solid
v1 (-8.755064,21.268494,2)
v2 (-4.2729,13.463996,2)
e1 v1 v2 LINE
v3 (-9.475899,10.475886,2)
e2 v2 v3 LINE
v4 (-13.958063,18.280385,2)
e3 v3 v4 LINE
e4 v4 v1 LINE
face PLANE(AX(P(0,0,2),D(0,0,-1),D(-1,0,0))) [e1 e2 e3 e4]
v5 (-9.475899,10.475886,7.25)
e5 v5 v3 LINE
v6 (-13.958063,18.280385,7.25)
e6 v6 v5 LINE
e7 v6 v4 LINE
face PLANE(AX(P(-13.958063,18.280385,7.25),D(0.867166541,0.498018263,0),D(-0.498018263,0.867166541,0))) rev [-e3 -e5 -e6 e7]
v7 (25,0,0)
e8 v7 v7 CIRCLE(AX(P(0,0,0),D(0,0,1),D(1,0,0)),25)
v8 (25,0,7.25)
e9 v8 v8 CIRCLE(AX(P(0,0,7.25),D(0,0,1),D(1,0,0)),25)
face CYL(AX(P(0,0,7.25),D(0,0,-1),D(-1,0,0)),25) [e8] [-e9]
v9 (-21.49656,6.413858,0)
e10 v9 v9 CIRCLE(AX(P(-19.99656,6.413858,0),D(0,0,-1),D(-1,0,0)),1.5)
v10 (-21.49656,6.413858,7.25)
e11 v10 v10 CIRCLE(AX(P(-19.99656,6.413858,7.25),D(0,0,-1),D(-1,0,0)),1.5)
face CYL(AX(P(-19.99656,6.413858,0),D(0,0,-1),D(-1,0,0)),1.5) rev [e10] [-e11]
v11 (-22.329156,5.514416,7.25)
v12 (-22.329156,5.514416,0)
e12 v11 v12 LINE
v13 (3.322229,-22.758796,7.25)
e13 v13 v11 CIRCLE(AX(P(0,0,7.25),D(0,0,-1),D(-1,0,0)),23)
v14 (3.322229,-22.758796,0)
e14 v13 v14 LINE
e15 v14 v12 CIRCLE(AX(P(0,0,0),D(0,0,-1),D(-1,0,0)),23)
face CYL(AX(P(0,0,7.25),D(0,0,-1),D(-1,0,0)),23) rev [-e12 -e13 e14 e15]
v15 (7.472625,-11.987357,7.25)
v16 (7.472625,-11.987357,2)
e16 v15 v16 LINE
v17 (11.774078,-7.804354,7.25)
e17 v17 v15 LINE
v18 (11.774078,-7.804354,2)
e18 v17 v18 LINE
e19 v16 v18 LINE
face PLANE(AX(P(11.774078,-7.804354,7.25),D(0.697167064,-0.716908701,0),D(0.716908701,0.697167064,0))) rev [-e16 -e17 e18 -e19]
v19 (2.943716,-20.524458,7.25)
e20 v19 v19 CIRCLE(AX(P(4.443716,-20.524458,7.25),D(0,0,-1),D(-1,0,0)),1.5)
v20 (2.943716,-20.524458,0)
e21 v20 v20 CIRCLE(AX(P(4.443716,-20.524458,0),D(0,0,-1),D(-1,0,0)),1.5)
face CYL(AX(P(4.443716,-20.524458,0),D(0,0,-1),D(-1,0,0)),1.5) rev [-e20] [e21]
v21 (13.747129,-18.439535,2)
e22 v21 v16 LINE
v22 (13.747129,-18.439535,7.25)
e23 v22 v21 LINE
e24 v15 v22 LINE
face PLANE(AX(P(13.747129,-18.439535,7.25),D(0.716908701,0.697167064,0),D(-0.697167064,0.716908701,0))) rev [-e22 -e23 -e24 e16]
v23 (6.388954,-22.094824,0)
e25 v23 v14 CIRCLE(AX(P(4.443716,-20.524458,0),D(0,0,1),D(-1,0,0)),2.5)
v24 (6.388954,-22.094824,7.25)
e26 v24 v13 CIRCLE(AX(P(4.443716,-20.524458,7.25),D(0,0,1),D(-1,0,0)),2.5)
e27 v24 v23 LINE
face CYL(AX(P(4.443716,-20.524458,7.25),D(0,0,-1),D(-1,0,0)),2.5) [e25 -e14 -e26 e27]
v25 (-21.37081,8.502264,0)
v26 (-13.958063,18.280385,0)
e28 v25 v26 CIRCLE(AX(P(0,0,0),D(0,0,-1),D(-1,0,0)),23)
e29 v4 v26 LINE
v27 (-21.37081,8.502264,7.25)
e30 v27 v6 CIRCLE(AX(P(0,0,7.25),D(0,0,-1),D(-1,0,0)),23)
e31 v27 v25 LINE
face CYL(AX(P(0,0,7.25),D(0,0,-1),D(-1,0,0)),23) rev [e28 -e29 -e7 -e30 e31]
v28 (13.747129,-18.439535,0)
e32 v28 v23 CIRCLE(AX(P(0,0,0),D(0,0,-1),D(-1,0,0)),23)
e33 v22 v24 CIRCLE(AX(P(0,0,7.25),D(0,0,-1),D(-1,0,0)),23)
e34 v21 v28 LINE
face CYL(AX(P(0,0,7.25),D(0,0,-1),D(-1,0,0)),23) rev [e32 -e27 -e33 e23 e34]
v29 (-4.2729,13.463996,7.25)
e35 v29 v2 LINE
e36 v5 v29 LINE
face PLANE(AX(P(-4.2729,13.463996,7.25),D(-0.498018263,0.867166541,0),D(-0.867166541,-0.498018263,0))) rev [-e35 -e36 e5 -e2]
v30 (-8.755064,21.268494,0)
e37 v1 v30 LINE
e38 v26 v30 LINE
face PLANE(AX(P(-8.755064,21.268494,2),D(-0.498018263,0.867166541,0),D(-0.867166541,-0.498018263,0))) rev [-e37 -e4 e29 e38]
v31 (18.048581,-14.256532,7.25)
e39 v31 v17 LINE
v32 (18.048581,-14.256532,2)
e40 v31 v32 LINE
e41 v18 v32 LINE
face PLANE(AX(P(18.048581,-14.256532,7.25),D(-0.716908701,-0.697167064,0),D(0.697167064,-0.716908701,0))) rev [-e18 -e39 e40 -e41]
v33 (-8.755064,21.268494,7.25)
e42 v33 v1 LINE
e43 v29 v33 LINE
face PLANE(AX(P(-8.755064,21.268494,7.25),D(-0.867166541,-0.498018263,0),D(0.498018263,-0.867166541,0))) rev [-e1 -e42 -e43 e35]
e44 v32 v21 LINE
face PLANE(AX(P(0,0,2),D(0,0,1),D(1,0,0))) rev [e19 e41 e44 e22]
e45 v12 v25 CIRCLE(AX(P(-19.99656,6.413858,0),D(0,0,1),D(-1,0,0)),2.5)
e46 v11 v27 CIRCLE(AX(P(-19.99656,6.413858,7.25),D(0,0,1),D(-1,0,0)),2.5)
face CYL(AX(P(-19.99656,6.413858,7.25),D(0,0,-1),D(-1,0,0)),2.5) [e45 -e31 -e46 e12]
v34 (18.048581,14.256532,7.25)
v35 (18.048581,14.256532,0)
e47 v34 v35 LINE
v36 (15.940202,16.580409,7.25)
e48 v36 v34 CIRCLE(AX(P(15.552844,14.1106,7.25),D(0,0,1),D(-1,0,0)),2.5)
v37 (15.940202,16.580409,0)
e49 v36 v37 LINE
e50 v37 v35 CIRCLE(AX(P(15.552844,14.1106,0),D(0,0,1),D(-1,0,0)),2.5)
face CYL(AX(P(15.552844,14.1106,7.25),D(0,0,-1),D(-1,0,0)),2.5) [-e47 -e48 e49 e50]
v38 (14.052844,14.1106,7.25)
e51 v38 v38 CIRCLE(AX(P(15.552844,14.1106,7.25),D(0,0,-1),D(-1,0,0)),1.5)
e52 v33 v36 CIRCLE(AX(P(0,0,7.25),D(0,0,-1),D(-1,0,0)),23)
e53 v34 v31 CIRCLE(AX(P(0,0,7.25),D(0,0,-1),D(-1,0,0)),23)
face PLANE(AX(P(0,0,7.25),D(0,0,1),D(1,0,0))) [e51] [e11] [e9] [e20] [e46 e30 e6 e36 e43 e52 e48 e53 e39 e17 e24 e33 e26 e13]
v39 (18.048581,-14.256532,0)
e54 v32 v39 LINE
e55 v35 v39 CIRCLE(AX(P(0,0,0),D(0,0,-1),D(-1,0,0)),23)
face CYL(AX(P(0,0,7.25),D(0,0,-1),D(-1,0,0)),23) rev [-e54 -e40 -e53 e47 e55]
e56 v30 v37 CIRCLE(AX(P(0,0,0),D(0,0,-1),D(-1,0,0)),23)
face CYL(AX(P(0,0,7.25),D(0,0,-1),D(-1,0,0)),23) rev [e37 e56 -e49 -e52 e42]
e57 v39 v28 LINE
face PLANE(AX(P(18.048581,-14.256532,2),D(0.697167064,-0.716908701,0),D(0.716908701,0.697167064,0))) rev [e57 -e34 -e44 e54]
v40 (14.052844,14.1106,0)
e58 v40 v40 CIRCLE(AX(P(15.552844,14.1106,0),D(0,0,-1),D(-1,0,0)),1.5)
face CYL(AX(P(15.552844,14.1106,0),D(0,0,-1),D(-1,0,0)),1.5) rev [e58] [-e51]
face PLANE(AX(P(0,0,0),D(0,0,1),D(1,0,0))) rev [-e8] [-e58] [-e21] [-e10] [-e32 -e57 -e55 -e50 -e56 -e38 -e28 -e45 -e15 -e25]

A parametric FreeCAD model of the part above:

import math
import FreeCAD as App
import Part
import Sketcher
from FreeCAD import Vector
Q = App.Units.Quantity

doc = App.newDocument("Part")
params = doc.addObject("Spreadsheet::Sheet", "Params")
for row, (alias, value) in enumerate([
    ("sketch1_diameter", "50 mm"),
    ("pad1_length", "7.25 mm"),
    ("sketch2_diameter", "3 mm"),
    ("hole_diameter", "3 mm"),
    ("sketch3_radius", "23 mm"),
    ("sketch3_radius2", "2.5 mm"),
    ("sketch3_length", "9 mm"),
    ("sketch3_length2", "6 mm"),
    ("sketch4_length", "9 mm"),
    ("sketch4_length2", "6 mm"),
    ("pocket2_length", "2 mm"),
], start=1):
    params.set(f"A{row}", alias)
    params.set(f"B{row}", "=" + value)
    params.setAlias(f"B{row}", alias)

body = doc.addObject("PartDesign::Body", "Body")

sketch1 = body.newObject("Sketcher::SketchObject", "Sketch")
sketch1.AttachmentSupport = (doc.getObject("XY_Plane"), [""])
sketch1.MapMode = "FlatFace"
sketch1.addGeometry(Part.Circle(Vector(0, 0, 0), Vector(0, 0, 1), 25), False)
sketch1.addConstraint([
    Sketcher.Constraint("Coincident", 0, 3, -1, 1),
    Sketcher.Constraint("Diameter", 0, Q("50 mm")),
])
sketch1.setExpression("Constraints[1]", "Params.sketch1_diameter")
pad1 = body.newObject("PartDesign::Pad", "Pad")
pad1.Profile = sketch1
pad1.setExpression("Length", "Params.pad1_length")

sketch2 = body.newObject("Sketcher::SketchObject", "Sketch001")
sketch2.AttachmentSupport = (doc.getObject("XY_Plane"), [""])
sketch2.MapMode = "FlatFace"
sketch2.addGeometry(Part.Circle(Vector(15.6, 14.1, 0), Vector(0, 0, 1), 1.5), False)
sketch2.addConstraint([
    Sketcher.Constraint("Diameter", 0, Q("3 mm")),
    Sketcher.Constraint("DistanceY", -1, 1, 0, 3, Q("14.1106 mm")),
    Sketcher.Constraint("DistanceX", -1, 1, 0, 3, Q("15.552844 mm")),
])
sketch2.setExpression("Constraints[0]", "Params.sketch2_diameter")
doc.recompute()
hole = body.newObject("PartDesign::Hole", "Hole")
hole.Profile = sketch2
hole.ThreadType = "None"
hole.setExpression("Diameter", "Params.hole_diameter")
hole.DepthType = "ThroughAll"
hole.Reversed = True
doc.recompute()

polarpattern = body.newObject("PartDesign::PolarPattern", "PolarPattern")
polarpattern.Originals = [hole]
polarpattern.Axis = (doc.getObject("Z_Axis"), [""])
polarpattern.Angle = 360
polarpattern.Occurrences = 3
body.Tip = polarpattern

sketch3 = body.newObject("Sketcher::SketchObject", "Sketch002")
sketch3.AttachmentSupport = (doc.getObject("XY_Plane"), [""])
sketch3.MapMode = "FlatFace"
sketch3.addGeometry([
    Part.LineSegment(Vector(-4.3, 13.5, 0), Vector(-8.8, 21.3, 0)),
    Part.ArcOfCircle(Part.Circle(Vector(0, 0, 0), Vector(0, 0, 1), 23), math.radians(46), math.radians(112)),
    Part.ArcOfCircle(Part.Circle(Vector(15.6, 14.1, 0), Vector(0, 0, 1), 2.5), math.radians(81), math.radians(363)),
    Part.ArcOfCircle(Part.Circle(Vector(0, 0, 0), Vector(0, 0, 1), 23), math.radians(-38), math.radians(38)),
    Part.LineSegment(Vector(18, -14.3, 0), Vector(11.8, -7.8, 0)),
    Part.LineSegment(Vector(11.8, -7.8, 0), Vector(7.5, -12, 0)),
    Part.LineSegment(Vector(7.5, -12, 0), Vector(13.7, -18.4, 0)),
    Part.ArcOfCircle(Part.Circle(Vector(0, 0, 0), Vector(0, 0, 1), 23), math.radians(-74), math.radians(-53)),
    Part.ArcOfCircle(Part.Circle(Vector(4.4, -20.5, 0), Vector(0, 0, 1), 2.5), math.radians(-39), math.radians(243)),
    Part.ArcOfCircle(Part.Circle(Vector(0, 0, 0), Vector(0, 0, 1), 23), math.radians(166), math.radians(278)),
    Part.ArcOfCircle(Part.Circle(Vector(-20, 6.4, 0), Vector(0, 0, 1), 2.5), math.radians(-159), math.radians(123)),
    Part.ArcOfCircle(Part.Circle(Vector(0, 0, 0), Vector(0, 0, 1), 23), math.radians(127), math.radians(158)),
    Part.LineSegment(Vector(-14, 18.3, 0), Vector(-9.5, 10.5, 0)),
    Part.LineSegment(Vector(-9.5, 10.5, 0), Vector(-4.3, 13.5, 0)),
], False)
sketch3.addConstraint([
    Sketcher.Constraint("Coincident", 0, 2, 1, 2),
    Sketcher.Constraint("Coincident", 1, 1, 2, 1),
    Sketcher.Constraint("Coincident", 2, 2, 3, 2),
    Sketcher.Constraint("Coincident", 3, 1, 4, 1),
    Sketcher.Constraint("Coincident", 4, 2, 5, 1),
    Sketcher.Constraint("Coincident", 5, 2, 6, 1),
    Sketcher.Constraint("Coincident", 6, 2, 7, 2),
    Sketcher.Constraint("Coincident", 7, 1, 8, 1),
    Sketcher.Constraint("Coincident", 8, 2, 9, 2),
    Sketcher.Constraint("Coincident", 9, 1, 10, 1),
    Sketcher.Constraint("Coincident", 10, 2, 11, 2),
    Sketcher.Constraint("Coincident", 11, 1, 12, 1),
    Sketcher.Constraint("Coincident", 12, 2, 13, 1),
    Sketcher.Constraint("Coincident", 13, 2, 0, 1),
    Sketcher.Constraint("Coincident", 1, 3, -1, 1),
    Sketcher.Constraint("Coincident", 3, 3, -1, 1),
    Sketcher.Constraint("Coincident", 7, 3, -1, 1),
    Sketcher.Constraint("Coincident", 9, 3, -1, 1),
    Sketcher.Constraint("Coincident", 11, 3, -1, 1),
    Sketcher.Constraint("Equal", 1, 3),
    Sketcher.Constraint("Equal", 3, 7),
    Sketcher.Constraint("Equal", 2, 8),
    Sketcher.Constraint("Equal", 7, 9),
    Sketcher.Constraint("Equal", 8, 10),
    Sketcher.Constraint("Equal", 9, 11),
    Sketcher.Constraint("Perpendicular", 4, 5),
    Sketcher.Constraint("Perpendicular", 5, 6),
    Sketcher.Constraint("Parallel", 0, 12),
    Sketcher.Constraint("Perpendicular", 12, 13),
    Sketcher.Constraint("Vertical", 2, 2, 3, 1),
    Sketcher.Constraint("Equal", 0, 4),
    Sketcher.Constraint("Equal", 4, 6),
    Sketcher.Constraint("Equal", 6, 12),
    Sketcher.Constraint("Equal", 5, 13),
    Sketcher.Constraint("Radius", 1, Q("23 mm")),
    Sketcher.Constraint("Radius", 2, Q("2.5 mm")),
    Sketcher.Constraint("Distance", 0, Q("9 mm")),
    Sketcher.Constraint("Distance", 5, Q("6 mm")),
    Sketcher.Constraint("DistanceX", 11, 1, 0, 2, Q("5.202999 mm")),
    Sketcher.Constraint("DistanceY", -1, 1, 2, 3, Q("14.1106 mm")),
    Sketcher.Constraint("DistanceY", 8, 3, 5, 2, Q("8.537102 mm")),
    Sketcher.Constraint("DistanceX", 8, 2, 6, 2, Q("10.4249 mm")),
    Sketcher.Constraint("DistanceY", 8, 3, -1, 1, Q("20.524458 mm")),
    Sketcher.Constraint("DistanceX", 10, 3, -1, 1, Q("19.99656 mm")),
    Sketcher.Constraint("DistanceX", 10, 2, -1, 1, Q("21.37081 mm")),
])
sketch3.setExpression("Constraints[34]", "Params.sketch3_radius")
sketch3.setExpression("Constraints[35]", "Params.sketch3_radius2")
sketch3.setExpression("Constraints[36]", "Params.sketch3_length")
sketch3.setExpression("Constraints[37]", "Params.sketch3_length2")
pocket1 = body.newObject("PartDesign::Pocket", "Pocket")
pocket1.Profile = sketch3
pocket1.Type = "ThroughAll"
pocket1.Reversed = True

sketch4 = body.newObject("Sketcher::SketchObject", "Sketch003")
sketch4.AttachmentSupport = (doc.getObject("XY_Plane"), [""])
sketch4.MapMode = "FlatFace"
sketch4.addGeometry([
    Part.LineSegment(Vector(12, -8, 0), Vector(18, -14, 0)),
    Part.LineSegment(Vector(18, -14, 0), Vector(14, -18, 0)),
    Part.LineSegment(Vector(14, -18, 0), Vector(7, -12, 0)),
    Part.LineSegment(Vector(7, -12, 0), Vector(12, -8, 0)),
    Part.LineSegment(Vector(-9, 21, 0), Vector(-4, 13, 0)),
    Part.LineSegment(Vector(-4, 13, 0), Vector(-9, 10, 0)),
    Part.LineSegment(Vector(-9, 10, 0), Vector(-14, 18, 0)),
    Part.LineSegment(Vector(-14, 18, 0), Vector(-9, 21, 0)),
], False)
sketch4.addConstraint([
    Sketcher.Constraint("Coincident", 0, 2, 1, 1),
    Sketcher.Constraint("Coincident", 1, 2, 2, 1),
    Sketcher.Constraint("Coincident", 2, 2, 3, 1),
    Sketcher.Constraint("Coincident", 3, 2, 0, 1),
    Sketcher.Constraint("Coincident", 4, 2, 5, 1),
    Sketcher.Constraint("Coincident", 5, 2, 6, 1),
    Sketcher.Constraint("Coincident", 6, 2, 7, 1),
    Sketcher.Constraint("Coincident", 7, 2, 4, 1),
    Sketcher.Constraint("Perpendicular", 0, 1),
    Sketcher.Constraint("Perpendicular", 1, 2),
    Sketcher.Constraint("Perpendicular", 2, 3),
    Sketcher.Constraint("Perpendicular", 4, 5),
    Sketcher.Constraint("Perpendicular", 5, 6),
    Sketcher.Constraint("Perpendicular", 6, 7),
    Sketcher.Constraint("Equal", 2, 4),
    Sketcher.Constraint("Equal", 3, 5),
    Sketcher.Constraint("Distance", 0, Q("9 mm")),
    Sketcher.Constraint("Distance", 1, Q("6 mm")),
    Sketcher.Constraint("DistanceX", 5, 2, 4, 2, Q("5.202999 mm")),
    Sketcher.Constraint("DistanceX", 4, 2, -1, 1, Q("4.2729 mm")),
    Sketcher.Constraint("DistanceX", -1, 1, 0, 2, Q("18.048581 mm")),
    Sketcher.Constraint("DistanceX", -1, 1, 1, 2, Q("13.747129 mm")),
    Sketcher.Constraint("DistanceY", 3, 2, 4, 2, Q("21.26835 mm")),
    Sketcher.Constraint("DistanceY", 0, 2, -1, 1, Q("14.256532 mm")),
])
sketch4.setExpression("Constraints[16]", "Params.sketch4_length")
sketch4.setExpression("Constraints[17]", "Params.sketch4_length2")
pocket2 = body.newObject("PartDesign::Pocket", "Pocket001")
pocket2.Profile = sketch4
pocket2.setExpression("Length", "Params.pocket2_length")
pocket2.Reversed = True

doc.recompute()
